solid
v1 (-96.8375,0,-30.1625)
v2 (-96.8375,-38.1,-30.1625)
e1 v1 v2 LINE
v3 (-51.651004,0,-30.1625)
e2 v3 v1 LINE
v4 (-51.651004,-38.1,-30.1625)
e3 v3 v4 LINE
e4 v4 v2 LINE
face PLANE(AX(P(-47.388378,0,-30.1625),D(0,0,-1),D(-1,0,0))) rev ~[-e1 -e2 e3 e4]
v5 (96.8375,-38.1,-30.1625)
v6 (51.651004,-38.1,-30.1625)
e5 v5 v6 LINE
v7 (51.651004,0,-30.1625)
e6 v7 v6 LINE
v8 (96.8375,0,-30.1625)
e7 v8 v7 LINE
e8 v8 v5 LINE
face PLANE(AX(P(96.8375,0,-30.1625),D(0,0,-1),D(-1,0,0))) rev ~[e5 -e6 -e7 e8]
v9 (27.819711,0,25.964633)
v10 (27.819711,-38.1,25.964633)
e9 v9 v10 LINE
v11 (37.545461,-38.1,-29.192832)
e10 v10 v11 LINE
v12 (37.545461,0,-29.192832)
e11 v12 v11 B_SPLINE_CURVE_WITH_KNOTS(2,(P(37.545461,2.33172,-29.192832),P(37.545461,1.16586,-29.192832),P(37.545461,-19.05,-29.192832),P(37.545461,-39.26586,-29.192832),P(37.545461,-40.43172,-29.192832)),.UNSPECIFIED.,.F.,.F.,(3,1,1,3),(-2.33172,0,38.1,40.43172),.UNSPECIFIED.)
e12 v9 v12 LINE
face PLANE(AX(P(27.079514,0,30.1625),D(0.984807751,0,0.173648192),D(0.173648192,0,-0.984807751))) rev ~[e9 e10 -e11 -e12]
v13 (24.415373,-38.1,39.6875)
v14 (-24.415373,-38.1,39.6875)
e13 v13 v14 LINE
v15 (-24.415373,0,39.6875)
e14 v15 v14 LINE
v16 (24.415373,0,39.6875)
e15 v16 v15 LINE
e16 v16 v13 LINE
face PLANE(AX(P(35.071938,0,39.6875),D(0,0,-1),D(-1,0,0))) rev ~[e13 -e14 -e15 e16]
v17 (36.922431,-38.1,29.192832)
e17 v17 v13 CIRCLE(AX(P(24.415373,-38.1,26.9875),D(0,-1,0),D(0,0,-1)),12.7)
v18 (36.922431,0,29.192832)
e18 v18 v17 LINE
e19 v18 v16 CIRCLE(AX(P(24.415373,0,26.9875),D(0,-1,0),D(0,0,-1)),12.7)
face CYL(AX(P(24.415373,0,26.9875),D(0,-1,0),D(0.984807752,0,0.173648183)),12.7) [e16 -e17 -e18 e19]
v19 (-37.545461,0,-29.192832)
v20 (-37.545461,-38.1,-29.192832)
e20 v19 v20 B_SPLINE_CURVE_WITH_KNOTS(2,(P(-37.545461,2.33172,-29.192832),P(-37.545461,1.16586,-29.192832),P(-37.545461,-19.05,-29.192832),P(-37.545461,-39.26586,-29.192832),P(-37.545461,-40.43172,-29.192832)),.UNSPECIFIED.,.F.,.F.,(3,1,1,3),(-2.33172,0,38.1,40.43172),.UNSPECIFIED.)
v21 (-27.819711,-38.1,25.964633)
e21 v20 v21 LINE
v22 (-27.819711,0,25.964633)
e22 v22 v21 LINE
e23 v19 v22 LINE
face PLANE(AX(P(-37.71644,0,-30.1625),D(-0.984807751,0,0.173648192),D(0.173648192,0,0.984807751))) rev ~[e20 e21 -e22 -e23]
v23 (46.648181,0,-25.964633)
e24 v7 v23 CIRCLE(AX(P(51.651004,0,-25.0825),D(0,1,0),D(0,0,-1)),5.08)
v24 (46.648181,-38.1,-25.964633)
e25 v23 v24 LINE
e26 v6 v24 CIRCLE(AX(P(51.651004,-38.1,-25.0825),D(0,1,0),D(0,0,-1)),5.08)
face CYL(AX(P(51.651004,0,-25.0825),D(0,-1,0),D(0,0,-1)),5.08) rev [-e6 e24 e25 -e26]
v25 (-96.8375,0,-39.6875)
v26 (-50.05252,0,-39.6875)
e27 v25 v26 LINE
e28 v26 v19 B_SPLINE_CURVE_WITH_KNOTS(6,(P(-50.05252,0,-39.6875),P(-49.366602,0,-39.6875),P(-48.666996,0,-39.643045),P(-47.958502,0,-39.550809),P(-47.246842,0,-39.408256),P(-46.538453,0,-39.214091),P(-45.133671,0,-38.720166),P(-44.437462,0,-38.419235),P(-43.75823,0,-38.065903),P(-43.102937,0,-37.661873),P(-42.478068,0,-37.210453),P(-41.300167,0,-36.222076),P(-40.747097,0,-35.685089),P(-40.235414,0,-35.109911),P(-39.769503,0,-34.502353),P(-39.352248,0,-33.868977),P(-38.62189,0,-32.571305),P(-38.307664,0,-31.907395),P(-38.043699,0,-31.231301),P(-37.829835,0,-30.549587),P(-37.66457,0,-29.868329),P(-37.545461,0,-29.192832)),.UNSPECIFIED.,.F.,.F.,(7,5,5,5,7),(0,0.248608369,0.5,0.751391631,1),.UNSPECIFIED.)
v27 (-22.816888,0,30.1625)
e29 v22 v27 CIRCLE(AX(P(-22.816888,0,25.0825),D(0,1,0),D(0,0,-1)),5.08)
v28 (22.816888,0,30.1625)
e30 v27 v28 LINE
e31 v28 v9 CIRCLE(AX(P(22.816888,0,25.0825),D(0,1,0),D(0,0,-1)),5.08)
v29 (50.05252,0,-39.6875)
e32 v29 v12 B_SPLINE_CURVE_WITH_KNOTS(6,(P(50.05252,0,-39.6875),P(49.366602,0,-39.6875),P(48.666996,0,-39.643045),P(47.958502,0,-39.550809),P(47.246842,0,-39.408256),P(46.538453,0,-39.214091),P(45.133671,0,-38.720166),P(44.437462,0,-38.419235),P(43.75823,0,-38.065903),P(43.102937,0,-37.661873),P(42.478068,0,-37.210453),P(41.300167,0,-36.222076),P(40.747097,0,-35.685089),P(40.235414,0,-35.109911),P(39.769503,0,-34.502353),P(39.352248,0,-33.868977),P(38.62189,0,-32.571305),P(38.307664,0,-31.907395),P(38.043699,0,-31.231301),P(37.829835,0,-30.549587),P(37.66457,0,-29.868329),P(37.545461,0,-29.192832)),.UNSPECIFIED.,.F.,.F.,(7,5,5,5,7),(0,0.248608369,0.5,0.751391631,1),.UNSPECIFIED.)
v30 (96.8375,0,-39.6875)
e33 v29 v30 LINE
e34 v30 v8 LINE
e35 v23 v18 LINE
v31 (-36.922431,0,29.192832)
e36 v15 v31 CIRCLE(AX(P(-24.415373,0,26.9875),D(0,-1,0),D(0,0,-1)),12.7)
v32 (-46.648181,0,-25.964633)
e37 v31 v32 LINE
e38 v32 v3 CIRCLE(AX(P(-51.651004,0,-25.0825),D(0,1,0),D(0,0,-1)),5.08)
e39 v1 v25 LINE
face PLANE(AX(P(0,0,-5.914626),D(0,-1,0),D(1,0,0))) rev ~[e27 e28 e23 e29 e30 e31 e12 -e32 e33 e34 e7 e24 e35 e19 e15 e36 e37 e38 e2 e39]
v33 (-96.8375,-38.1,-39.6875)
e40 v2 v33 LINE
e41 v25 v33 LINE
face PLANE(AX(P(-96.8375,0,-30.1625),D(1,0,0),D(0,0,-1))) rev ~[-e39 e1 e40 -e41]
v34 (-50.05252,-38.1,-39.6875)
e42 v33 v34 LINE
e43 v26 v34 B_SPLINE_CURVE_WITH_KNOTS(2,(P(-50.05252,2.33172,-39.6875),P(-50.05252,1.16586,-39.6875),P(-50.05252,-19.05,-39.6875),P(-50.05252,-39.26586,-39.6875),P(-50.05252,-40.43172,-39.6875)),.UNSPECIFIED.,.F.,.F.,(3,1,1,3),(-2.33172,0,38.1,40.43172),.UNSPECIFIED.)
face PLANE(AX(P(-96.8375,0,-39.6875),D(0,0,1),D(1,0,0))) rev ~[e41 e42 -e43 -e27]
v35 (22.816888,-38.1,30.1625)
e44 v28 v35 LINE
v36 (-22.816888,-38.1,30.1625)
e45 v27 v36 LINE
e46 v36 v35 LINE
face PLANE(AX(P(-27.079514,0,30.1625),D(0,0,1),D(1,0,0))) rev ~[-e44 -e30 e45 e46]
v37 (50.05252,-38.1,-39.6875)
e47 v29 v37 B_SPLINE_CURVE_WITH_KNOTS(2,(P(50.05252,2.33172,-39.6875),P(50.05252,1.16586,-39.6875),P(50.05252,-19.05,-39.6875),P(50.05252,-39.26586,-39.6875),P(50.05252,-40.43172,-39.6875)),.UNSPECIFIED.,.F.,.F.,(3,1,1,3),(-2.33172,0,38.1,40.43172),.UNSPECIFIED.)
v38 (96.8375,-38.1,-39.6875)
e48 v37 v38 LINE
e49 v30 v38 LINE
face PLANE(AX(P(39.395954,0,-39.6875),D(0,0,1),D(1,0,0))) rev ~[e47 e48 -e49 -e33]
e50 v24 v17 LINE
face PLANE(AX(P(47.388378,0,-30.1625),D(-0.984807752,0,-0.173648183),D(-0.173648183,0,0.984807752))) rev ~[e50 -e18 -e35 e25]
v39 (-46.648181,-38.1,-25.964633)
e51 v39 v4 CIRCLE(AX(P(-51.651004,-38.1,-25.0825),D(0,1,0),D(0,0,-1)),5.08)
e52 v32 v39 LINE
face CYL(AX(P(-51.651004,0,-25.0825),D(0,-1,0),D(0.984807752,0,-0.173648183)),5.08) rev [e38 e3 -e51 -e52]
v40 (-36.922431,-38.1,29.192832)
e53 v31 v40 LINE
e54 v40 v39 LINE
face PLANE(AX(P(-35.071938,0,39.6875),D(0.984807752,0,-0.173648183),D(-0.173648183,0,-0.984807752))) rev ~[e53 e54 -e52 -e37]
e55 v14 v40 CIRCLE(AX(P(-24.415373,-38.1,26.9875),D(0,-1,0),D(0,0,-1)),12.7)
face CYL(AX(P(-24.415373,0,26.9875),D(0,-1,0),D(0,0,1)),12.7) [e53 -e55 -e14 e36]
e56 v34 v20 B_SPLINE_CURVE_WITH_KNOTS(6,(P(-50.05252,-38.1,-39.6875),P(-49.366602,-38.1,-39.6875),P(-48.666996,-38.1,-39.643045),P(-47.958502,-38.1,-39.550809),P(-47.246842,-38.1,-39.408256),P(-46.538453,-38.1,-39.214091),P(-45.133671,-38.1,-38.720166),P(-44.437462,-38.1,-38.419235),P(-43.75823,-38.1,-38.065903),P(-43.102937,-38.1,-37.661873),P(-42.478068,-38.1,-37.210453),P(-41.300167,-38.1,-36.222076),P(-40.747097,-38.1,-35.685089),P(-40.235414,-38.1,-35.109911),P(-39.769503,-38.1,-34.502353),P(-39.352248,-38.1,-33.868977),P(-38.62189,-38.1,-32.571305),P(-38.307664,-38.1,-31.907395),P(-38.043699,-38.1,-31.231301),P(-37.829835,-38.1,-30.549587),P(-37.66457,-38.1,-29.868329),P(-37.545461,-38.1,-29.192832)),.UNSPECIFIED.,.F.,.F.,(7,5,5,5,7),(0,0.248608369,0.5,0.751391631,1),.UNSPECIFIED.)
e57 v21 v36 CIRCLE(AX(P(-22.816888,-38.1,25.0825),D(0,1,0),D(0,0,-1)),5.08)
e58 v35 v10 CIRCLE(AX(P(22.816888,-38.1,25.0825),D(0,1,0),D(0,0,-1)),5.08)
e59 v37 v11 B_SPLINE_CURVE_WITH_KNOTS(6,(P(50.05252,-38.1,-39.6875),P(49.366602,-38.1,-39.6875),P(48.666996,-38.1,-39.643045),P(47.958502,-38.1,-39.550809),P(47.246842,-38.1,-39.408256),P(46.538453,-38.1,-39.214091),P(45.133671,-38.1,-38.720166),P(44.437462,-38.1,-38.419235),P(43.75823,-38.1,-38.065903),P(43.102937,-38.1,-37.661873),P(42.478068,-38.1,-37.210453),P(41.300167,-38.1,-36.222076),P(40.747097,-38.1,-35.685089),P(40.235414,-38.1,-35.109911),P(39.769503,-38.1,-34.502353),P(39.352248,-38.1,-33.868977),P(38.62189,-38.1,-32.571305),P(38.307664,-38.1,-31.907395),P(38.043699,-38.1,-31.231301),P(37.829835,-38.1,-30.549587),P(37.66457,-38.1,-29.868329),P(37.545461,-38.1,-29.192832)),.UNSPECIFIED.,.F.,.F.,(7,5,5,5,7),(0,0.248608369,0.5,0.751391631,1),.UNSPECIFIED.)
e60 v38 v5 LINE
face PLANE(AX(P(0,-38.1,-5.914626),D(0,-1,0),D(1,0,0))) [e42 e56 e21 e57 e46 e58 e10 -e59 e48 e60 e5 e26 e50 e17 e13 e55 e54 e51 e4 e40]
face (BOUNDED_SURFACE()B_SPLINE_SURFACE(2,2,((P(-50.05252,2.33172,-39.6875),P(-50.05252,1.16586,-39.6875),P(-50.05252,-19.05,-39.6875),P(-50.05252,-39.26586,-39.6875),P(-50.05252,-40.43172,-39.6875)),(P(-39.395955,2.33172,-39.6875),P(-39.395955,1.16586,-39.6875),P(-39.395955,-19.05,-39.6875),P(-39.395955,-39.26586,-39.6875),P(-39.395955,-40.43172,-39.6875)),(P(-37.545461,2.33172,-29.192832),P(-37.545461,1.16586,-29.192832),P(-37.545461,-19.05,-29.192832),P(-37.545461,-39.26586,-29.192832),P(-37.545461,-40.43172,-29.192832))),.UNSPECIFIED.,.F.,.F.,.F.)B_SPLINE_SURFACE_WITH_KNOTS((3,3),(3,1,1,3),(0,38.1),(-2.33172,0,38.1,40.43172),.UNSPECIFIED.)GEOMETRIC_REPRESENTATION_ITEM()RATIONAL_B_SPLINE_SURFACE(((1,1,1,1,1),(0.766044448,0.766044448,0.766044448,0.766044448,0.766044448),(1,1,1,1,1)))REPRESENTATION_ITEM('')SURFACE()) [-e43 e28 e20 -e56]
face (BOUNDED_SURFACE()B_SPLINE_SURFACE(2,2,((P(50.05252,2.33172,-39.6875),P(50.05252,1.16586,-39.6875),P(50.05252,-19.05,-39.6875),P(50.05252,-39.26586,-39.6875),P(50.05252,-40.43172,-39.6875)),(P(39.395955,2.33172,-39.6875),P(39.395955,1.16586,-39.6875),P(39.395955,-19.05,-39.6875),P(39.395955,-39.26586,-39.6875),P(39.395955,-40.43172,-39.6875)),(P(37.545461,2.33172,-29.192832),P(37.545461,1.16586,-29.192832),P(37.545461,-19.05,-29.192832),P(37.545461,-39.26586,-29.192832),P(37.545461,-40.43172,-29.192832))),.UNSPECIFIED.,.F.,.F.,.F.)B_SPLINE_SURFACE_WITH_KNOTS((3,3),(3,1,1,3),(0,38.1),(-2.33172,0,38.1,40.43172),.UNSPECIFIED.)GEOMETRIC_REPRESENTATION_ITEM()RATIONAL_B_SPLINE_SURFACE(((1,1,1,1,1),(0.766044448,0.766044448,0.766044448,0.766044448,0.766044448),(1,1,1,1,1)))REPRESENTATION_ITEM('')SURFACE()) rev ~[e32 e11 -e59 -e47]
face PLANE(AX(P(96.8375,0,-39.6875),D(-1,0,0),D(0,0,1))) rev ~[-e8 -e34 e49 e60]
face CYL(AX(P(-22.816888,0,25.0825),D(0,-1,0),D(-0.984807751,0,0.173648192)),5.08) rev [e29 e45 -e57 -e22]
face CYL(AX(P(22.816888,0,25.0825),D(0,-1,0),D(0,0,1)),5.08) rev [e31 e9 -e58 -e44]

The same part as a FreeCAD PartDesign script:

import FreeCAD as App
import Part
import Sketcher
from FreeCAD import Vector
Q = App.Units.Quantity


def edges_at(feature, points):
    """Names of the edges that pass closest to the given points."""
    edges = feature.Shape.Edges
    near = lambda p: min(range(len(edges)), key=lambda i: edges[i].distToShape(Part.Vertex(*p))[0])
    return sorted({f"Edge{near(p) + 1}" for p in points})

doc = App.newDocument("Part")
params = doc.addObject("Spreadsheet::Sheet", "Params")
for row, (alias, value) in enumerate([
    ("sketch1_height", "0.375 in"),
    ("pad1_length", "1.5 in"),
    ("fillet_radius", "0.2 in"),
    ("fillet2_radius", "0.5 in"),
], start=1):
    params.set(f"A{row}", alias)
    params.set(f"B{row}", "=" + value)
    params.setAlias(f"B{row}", alias)

body = doc.addObject("PartDesign::Body", "Body")

sketch1 = body.newObject("Sketcher::SketchObject", "Sketch")
sketch1.AttachmentSupport = (doc.getObject("XZ_Plane"), [""])
sketch1.MapMode = "FlatFace"
sketch1.addGeometry(Part.LineSegment(Vector(39.395954, -39.6875, 0), Vector(96.8375, -39.6875, 0)), False)
sketch1.addGeometry(Part.LineSegment(Vector(96.8375, -39.6875, 0), Vector(96.8375, -30.1625, 0)), False)
sketch1.addGeometry(Part.LineSegment(Vector(96.8375, -30.1625, 0), Vector(47.388378, -30.1625, 0)), False)
sketch1.addGeometry(Part.LineSegment(Vector(47.388378, -30.1625, 0), Vector(35.071938, 39.6875, 0)), False)
sketch1.addGeometry(Part.LineSegment(Vector(35.071938, 39.6875, 0), Vector(-35.071938, 39.6875, 0)), False)
sketch1.addGeometry(Part.LineSegment(Vector(-35.071938, 39.6875, 0), Vector(-47.388378, -30.1625, 0)), False)
sketch1.addGeometry(Part.LineSegment(Vector(-47.388378, -30.1625, 0), Vector(-96.8375, -30.1625, 0)), False)
sketch1.addGeometry(Part.LineSegment(Vector(-96.8375, -30.1625, 0), Vector(-96.8375, -39.6875, 0)), False)
sketch1.addGeometry(Part.LineSegment(Vector(-96.8375, -39.6875, 0), Vector(-39.395954, -39.6875, 0)), False)
sketch1.addGeometry(Part.LineSegment(Vector(-39.395954, -39.6875, 0), Vector(-37.71644, -30.1625, 0)), False)
sketch1.addGeometry(Part.LineSegment(Vector(-37.71644, -30.1625, 0), Vector(-27.079514, 30.1625, 0)), False)
sketch1.addGeometry(Part.LineSegment(Vector(-27.079514, 30.1625, 0), Vector(27.079514, 30.1625, 0)), False)
sketch1.addGeometry(Part.LineSegment(Vector(27.079514, 30.1625, 0), Vector(37.71644, -30.1625, 0)), False)
sketch1.addGeometry(Part.LineSegment(Vector(37.71644, -30.1625, 0), Vector(39.395954, -39.6875, 0)), False)
sketch1.addConstraint(Sketcher.Constraint("Coincident", 0, 2, 1, 1))
sketch1.addConstraint(Sketcher.Constraint("Coincident", 1, 2, 2, 1))
sketch1.addConstraint(Sketcher.Constraint("Coincident", 2, 2, 3, 1))
sketch1.addConstraint(Sketcher.Constraint("Coincident", 3, 2, 4, 1))
sketch1.addConstraint(Sketcher.Constraint("Coincident", 4, 2, 5, 1))
sketch1.addConstraint(Sketcher.Constraint("Coincident", 5, 2, 6, 1))
sketch1.addConstraint(Sketcher.Constraint("Coincident", 6, 2, 7, 1))
sketch1.addConstraint(Sketcher.Constraint("Coincident", 7, 2, 8, 1))
sketch1.addConstraint(Sketcher.Constraint("Coincident", 8, 2, 9, 1))
sketch1.addConstraint(Sketcher.Constraint("Coincident", 9, 2, 10, 1))
sketch1.addConstraint(Sketcher.Constraint("Coincident", 10, 2, 11, 1))
sketch1.addConstraint(Sketcher.Constraint("Coincident", 11, 2, 12, 1))
sketch1.addConstraint(Sketcher.Constraint("Coincident", 12, 2, 13, 1))
sketch1.addConstraint(Sketcher.Constraint("Coincident", 13, 2, 0, 1))
sketch1.addConstraint(Sketcher.Constraint("Horizontal", 0))
sketch1.addConstraint(Sketcher.Constraint("Vertical", 1))
sketch1.addConstraint(Sketcher.Constraint("Horizontal", 2))
sketch1.addConstraint(Sketcher.Constraint("Horizontal", 4))
sketch1.addConstraint(Sketcher.Constraint("Horizontal", 6))
sketch1.addConstraint(Sketcher.Constraint("Vertical", 7))
sketch1.addConstraint(Sketcher.Constraint("Horizontal", 8))
sketch1.addConstraint(Sketcher.Constraint("Horizontal", 11))
sketch1.addConstraint(Sketcher.Constraint("Symmetric", 2, 2, 5, 2, -2))
sketch1.addConstraint(Sketcher.Constraint("Symmetric", 0, 2, 7, 2, -2))
sketch1.addConstraint(Sketcher.Constraint("Symmetric", 9, 2, 12, 2, -2))
sketch1.addConstraint(Sketcher.Constraint("Parallel", 5, 9))
sketch1.addConstraint(Sketcher.Constraint("Parallel", 9, 10))
sketch1.addConstraint(Sketcher.Constraint("Parallel", 3, 12))
sketch1.addConstraint(Sketcher.Constraint("Parallel", 12, 13))
sketch1.addConstraint(Sketcher.Constraint("Horizontal", 6, 2, 9, 2))
sketch1.addConstraint(Sketcher.Constraint("Equal", 0, 8))
sketch1.addConstraint(Sketcher.Constraint("Angle", 3, Q("100 deg")))
sketch1.addConstraint(Sketcher.Constraint("DistanceY", 1, 1, 1, 2, Q("0.375 in")))
sketch1.addConstraint(Sketcher.Constraint("DistanceY", 2, 2, 3, 2, Q("2.75 in")))
sketch1.addConstraint(Sketcher.Constraint("DistanceY", 8, 2, 10, 2, Q("2.75 in")))
sketch1.addConstraint(Sketcher.Constraint("DistanceX", -1, 1, 0, 2, Q("3.8125 in")))
sketch1.addConstraint(Sketcher.Constraint("DistanceY", 0, 2, -1, 1, Q("1.5625 in")))
sketch1.addConstraint(Sketcher.Constraint("DistanceX", 9, 2, 4, 2, Q("2.644502 mm")))
sketch1.addConstraint(Sketcher.Constraint("DistanceX", 0, 1, 0, 2, Q("57.441546 mm")))
sketch1.setExpression("Constraints[32]", "Params.sketch1_height")
pad1 = body.newObject("PartDesign::Pad", "Pad")
pad1.Profile = sketch1
pad1.setExpression("Length", "Params.pad1_length")
doc.recompute()

fillet = body.newObject("PartDesign::Fillet", "Fillet")
fillet.Base = (pad1, edges_at(pad1, [
    (-27.08, -19.05, 30.163),
    (27.08, -19.05, 30.163),
    (47.388, -19.05, -30.163),
    (-47.388, -19.05, -30.163),
]))
fillet.setExpression("Radius", "Params.fillet_radius")
doc.recompute()

fillet2 = body.newObject("PartDesign::Fillet", "Fillet001")
fillet2.Base = (fillet, edges_at(fillet, [
    (-39.396, -19.05, -39.688),
    (39.396, -19.05, -39.688),
    (35.072, -19.05, 39.688),
    (-35.072, -19.05, 39.688),
]))
fillet2.setExpression("Radius", "Params.fillet2_radius")

doc.recompute()
